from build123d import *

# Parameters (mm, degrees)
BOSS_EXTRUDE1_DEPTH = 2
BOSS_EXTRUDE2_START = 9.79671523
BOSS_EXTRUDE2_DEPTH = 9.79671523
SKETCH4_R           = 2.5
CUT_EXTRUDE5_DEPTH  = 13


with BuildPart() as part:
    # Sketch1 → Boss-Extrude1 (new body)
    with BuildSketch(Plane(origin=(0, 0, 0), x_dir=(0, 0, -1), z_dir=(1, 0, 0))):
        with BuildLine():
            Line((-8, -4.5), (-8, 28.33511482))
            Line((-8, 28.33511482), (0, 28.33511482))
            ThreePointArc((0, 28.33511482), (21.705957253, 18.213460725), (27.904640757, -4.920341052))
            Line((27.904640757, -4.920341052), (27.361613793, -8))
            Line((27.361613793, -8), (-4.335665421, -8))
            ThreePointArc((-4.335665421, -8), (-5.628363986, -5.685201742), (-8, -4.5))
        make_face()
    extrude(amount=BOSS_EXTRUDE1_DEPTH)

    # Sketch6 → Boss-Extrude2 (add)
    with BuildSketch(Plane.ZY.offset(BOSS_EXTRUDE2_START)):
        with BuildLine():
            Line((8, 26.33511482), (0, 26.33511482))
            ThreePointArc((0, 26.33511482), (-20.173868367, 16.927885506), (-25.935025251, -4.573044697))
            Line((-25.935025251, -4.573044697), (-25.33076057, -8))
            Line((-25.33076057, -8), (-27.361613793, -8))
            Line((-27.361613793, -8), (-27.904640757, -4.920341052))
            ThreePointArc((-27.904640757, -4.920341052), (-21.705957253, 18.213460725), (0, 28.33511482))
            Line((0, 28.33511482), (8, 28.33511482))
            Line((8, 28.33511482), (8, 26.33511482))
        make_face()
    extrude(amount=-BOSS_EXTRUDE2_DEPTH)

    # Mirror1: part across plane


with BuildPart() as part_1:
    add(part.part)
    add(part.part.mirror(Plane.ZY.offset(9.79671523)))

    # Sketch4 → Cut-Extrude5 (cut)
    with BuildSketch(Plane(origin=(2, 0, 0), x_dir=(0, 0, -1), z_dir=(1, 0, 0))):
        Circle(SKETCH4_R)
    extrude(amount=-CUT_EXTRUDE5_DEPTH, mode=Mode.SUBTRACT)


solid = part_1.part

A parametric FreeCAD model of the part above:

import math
import FreeCAD as App
import Part
import Sketcher
from FreeCAD import Vector
Q = App.Units.Quantity

doc = App.newDocument("Part")
params = doc.addObject("Spreadsheet::Sheet", "Params")
for row, (alias, value) in enumerate([
    ("sketch1_radius", "4.5 mm"),
    ("sketch1_height", "8 mm"),
    ("pad1_length", "2 mm"),
    ("sketch2_width", "2 mm"),
    ("sketch2_height", "8 mm"),
    ("pad2_length", "9.796715 mm"),
    ("sketch3_diameter", "5 mm"),
    ("pocket1_length", "13 mm"),
], start=1):
    params.set(f"A{row}", alias)
    params.set(f"B{row}", "=" + value)
    params.setAlias(f"B{row}", alias)

body = doc.addObject("PartDesign::Body", "Body")

# Sketch on YZ plane
sketch1 = body.newObject("Sketcher::SketchObject", "Sketch")
sketch1.AttachmentSupport = (doc.getObject("YZ_Plane"), [""])
sketch1.MapMode = "FlatFace"
sketch1.addGeometry([
    Part.LineSegment(Vector(28.335115, 8, 0), Vector(-4.5, 8, 0)),  # 0
    Part.ArcOfCircle(Part.Circle(Vector(-8.939314, 8.736539, 0), Vector(0, 0, 1), 4.5), math.radians(-77.951683), math.radians(-9.420292)),  # 1
    Part.LineSegment(Vector(-8, 4.335665, 0), Vector(-8, -27.361614, 0)),  # 2
    Part.LineSegment(Vector(-8, -27.361614, 0), Vector(-4.920341, -27.904641, 0)),  # 3
    Part.ArcOfCircle(Part.Circle(Vector(0, 0, 0), Vector(0, 0, 1), 28.335115), math.radians(-100), math.radians(0)),  # 4
    Part.LineSegment(Vector(28.335115, 0, 0), Vector(28.335115, 8, 0)),  # 5
], False)
sketch1.addConstraint([
    Sketcher.Constraint("Coincident", 0, 2, 1, 2),
    Sketcher.Constraint("Coincident", 1, 1, 2, 1),
    Sketcher.Constraint("Coincident", 2, 2, 3, 1),
    Sketcher.Constraint("Tangent", 3, 2, 4, 1),
    Sketcher.Constraint("Tangent", 4, 2, 5, 1),
    Sketcher.Constraint("Coincident", 5, 2, 0, 1),
    Sketcher.Constraint("Horizontal", 0),
    Sketcher.Constraint("Vertical", 2),
    Sketcher.Constraint("Vertical", 5),
    Sketcher.Constraint("Coincident", 4, 3, -1, 1),
    Sketcher.Constraint("Radius", 1, 4.5),
    Sketcher.Constraint("DistanceY", 5, 1, 5, 2, 8.0),
    Sketcher.Constraint("Angle", 3, Q("-10 deg")),
    Sketcher.Constraint("DistanceX", 1, 1, -1, 1, 8.0),
    Sketcher.Constraint("DistanceX", 0, 2, -1, 1, 4.5),
    Sketcher.Constraint("Radius", 4, 28.335115),
    Sketcher.Constraint("DistanceY", 2, 2, 2, 1, 31.697279),
])
sketch1.setExpression("Constraints[10]", "Params.sketch1_radius")
sketch1.setExpression("Constraints[11]", "Params.sketch1_height")
pad1 = body.newObject("PartDesign::Pad", "Pad")
pad1.Profile = sketch1
pad1.setExpression("Length", "Params.pad1_length")

# Sketch on YZ plane
sketch2 = body.newObject("Sketcher::SketchObject", "Sketch001")
sketch2.AttachmentSupport = (doc.getObject("YZ_Plane"), [""])
sketch2.MapMode = "FlatFace"
sketch2.AttachmentOffset = App.Placement(Vector(0, 0, -9.796715), App.Rotation())
sketch2.addGeometry([
    Part.LineSegment(Vector(26.335115, 0, 0), Vector(26.335115, 8, 0)),  # 0
    Part.LineSegment(Vector(26.335115, 8, 0), Vector(28.335115, 8, 0)),  # 1
    Part.LineSegment(Vector(28.335115, 8, 0), Vector(28.335115, 0, 0)),  # 2
    Part.ArcOfCircle(Part.Circle(Vector(0, 0, 0), Vector(0, 0, 1), 28.335115), math.radians(-100), math.radians(0)),  # 3
    Part.LineSegment(Vector(-4.920341, -27.904641, 0), Vector(-8, -27.361614, 0)),  # 4
    Part.LineSegment(Vector(-8, -27.361614, 0), Vector(-8, -25.330761, 0)),  # 5
    Part.LineSegment(Vector(-8, -25.330761, 0), Vector(-4.573045, -25.935025, 0)),  # 6
    Part.ArcOfCircle(Part.Circle(Vector(0, 0, 0), Vector(0, 0, 1), 26.335115), math.radians(-100), math.radians(0)),  # 7
], False)
sketch2.addConstraint([
    Sketcher.Constraint("Coincident", 0, 2, 1, 1),
    Sketcher.Constraint("Coincident", 1, 2, 2, 1),
    Sketcher.Constraint("Tangent", 2, 2, 3, 2),
    Sketcher.Constraint("Tangent", 3, 1, 4, 1),
    Sketcher.Constraint("Coincident", 4, 2, 5, 1),
    Sketcher.Constraint("Coincident", 5, 2, 6, 1),
    Sketcher.Constraint("Tangent", 6, 2, 7, 1),
    Sketcher.Constraint("Tangent", 7, 2, 0, 1),
    Sketcher.Constraint("Vertical", 0),
    Sketcher.Constraint("Horizontal", 1),
    Sketcher.Constraint("Vertical", 2),
    Sketcher.Constraint("Vertical", 5),
    Sketcher.Constraint("Coincident", 3, 3, -1, 1),
    Sketcher.Constraint("Coincident", 7, 3, -1, 1),
    Sketcher.Constraint("Parallel", 4, 6),
    Sketcher.Constraint("DistanceX", 1, 1, 1, 2, 2.0),
    Sketcher.Constraint("DistanceY", 0, 1, 0, 2, 8.0),
    Sketcher.Constraint("Angle", 4, Q("170 deg")),
    Sketcher.Constraint("DistanceX", 4, 2, -1, 1, 8.0),
    Sketcher.Constraint("Radius", 3, 28.335115),
])
sketch2.setExpression("Constraints[15]", "Params.sketch2_width")
sketch2.setExpression("Constraints[16]", "Params.sketch2_height")
pad2 = body.newObject("PartDesign::Pad", "Pad001")
pad2.Profile = sketch2
pad2.setExpression("Length", "Params.pad2_length")
body2 = doc.addObject("PartDesign::Body", "Body001")
doc.recompute()

body2.BaseFeature = body
doc.recompute()

mirroring = doc.addObject("Part::Mirroring", "Mirroring")
mirroring.Source = body
mirroring.Base = Vector(-9.796715, 0, 0)
mirroring.Normal = Vector(-1, 0, 0)
body3 = doc.addObject("PartDesign::Body", "Body002")
body3.BaseFeature = mirroring
boolean = body2.newObject("PartDesign::Boolean", "Boolean")
boolean.Type = "Fuse"
boolean.addObjects([body3])
doc.recompute()

# Sketch on YZ plane
sketch3 = body2.newObject("Sketcher::SketchObject", "Sketch002")
sketch3.AttachmentSupport = (doc.getObject("YZ_Plane001"), [""])
sketch3.MapMode = "FlatFace"
sketch3.AttachmentOffset = App.Placement(Vector(0, 0, 2), App.Rotation())
sketch3.addGeometry(Part.Circle(Vector(0, 0, 0), Vector(0, 0, 1), 2.5), False)
sketch3.addConstraint([
    Sketcher.Constraint("Coincident", 0, 3, -1, 1),
    Sketcher.Constraint("Diameter", 0, 5.0),
])
sketch3.setExpression("Constraints[1]", "Params.sketch3_diameter")
pocket1 = body2.newObject("PartDesign::Pocket", "Pocket")
pocket1.Profile = sketch3
pocket1.setExpression("Length", "Params.pocket1_length")
mirroring.Visibility = False

doc.recompute()
